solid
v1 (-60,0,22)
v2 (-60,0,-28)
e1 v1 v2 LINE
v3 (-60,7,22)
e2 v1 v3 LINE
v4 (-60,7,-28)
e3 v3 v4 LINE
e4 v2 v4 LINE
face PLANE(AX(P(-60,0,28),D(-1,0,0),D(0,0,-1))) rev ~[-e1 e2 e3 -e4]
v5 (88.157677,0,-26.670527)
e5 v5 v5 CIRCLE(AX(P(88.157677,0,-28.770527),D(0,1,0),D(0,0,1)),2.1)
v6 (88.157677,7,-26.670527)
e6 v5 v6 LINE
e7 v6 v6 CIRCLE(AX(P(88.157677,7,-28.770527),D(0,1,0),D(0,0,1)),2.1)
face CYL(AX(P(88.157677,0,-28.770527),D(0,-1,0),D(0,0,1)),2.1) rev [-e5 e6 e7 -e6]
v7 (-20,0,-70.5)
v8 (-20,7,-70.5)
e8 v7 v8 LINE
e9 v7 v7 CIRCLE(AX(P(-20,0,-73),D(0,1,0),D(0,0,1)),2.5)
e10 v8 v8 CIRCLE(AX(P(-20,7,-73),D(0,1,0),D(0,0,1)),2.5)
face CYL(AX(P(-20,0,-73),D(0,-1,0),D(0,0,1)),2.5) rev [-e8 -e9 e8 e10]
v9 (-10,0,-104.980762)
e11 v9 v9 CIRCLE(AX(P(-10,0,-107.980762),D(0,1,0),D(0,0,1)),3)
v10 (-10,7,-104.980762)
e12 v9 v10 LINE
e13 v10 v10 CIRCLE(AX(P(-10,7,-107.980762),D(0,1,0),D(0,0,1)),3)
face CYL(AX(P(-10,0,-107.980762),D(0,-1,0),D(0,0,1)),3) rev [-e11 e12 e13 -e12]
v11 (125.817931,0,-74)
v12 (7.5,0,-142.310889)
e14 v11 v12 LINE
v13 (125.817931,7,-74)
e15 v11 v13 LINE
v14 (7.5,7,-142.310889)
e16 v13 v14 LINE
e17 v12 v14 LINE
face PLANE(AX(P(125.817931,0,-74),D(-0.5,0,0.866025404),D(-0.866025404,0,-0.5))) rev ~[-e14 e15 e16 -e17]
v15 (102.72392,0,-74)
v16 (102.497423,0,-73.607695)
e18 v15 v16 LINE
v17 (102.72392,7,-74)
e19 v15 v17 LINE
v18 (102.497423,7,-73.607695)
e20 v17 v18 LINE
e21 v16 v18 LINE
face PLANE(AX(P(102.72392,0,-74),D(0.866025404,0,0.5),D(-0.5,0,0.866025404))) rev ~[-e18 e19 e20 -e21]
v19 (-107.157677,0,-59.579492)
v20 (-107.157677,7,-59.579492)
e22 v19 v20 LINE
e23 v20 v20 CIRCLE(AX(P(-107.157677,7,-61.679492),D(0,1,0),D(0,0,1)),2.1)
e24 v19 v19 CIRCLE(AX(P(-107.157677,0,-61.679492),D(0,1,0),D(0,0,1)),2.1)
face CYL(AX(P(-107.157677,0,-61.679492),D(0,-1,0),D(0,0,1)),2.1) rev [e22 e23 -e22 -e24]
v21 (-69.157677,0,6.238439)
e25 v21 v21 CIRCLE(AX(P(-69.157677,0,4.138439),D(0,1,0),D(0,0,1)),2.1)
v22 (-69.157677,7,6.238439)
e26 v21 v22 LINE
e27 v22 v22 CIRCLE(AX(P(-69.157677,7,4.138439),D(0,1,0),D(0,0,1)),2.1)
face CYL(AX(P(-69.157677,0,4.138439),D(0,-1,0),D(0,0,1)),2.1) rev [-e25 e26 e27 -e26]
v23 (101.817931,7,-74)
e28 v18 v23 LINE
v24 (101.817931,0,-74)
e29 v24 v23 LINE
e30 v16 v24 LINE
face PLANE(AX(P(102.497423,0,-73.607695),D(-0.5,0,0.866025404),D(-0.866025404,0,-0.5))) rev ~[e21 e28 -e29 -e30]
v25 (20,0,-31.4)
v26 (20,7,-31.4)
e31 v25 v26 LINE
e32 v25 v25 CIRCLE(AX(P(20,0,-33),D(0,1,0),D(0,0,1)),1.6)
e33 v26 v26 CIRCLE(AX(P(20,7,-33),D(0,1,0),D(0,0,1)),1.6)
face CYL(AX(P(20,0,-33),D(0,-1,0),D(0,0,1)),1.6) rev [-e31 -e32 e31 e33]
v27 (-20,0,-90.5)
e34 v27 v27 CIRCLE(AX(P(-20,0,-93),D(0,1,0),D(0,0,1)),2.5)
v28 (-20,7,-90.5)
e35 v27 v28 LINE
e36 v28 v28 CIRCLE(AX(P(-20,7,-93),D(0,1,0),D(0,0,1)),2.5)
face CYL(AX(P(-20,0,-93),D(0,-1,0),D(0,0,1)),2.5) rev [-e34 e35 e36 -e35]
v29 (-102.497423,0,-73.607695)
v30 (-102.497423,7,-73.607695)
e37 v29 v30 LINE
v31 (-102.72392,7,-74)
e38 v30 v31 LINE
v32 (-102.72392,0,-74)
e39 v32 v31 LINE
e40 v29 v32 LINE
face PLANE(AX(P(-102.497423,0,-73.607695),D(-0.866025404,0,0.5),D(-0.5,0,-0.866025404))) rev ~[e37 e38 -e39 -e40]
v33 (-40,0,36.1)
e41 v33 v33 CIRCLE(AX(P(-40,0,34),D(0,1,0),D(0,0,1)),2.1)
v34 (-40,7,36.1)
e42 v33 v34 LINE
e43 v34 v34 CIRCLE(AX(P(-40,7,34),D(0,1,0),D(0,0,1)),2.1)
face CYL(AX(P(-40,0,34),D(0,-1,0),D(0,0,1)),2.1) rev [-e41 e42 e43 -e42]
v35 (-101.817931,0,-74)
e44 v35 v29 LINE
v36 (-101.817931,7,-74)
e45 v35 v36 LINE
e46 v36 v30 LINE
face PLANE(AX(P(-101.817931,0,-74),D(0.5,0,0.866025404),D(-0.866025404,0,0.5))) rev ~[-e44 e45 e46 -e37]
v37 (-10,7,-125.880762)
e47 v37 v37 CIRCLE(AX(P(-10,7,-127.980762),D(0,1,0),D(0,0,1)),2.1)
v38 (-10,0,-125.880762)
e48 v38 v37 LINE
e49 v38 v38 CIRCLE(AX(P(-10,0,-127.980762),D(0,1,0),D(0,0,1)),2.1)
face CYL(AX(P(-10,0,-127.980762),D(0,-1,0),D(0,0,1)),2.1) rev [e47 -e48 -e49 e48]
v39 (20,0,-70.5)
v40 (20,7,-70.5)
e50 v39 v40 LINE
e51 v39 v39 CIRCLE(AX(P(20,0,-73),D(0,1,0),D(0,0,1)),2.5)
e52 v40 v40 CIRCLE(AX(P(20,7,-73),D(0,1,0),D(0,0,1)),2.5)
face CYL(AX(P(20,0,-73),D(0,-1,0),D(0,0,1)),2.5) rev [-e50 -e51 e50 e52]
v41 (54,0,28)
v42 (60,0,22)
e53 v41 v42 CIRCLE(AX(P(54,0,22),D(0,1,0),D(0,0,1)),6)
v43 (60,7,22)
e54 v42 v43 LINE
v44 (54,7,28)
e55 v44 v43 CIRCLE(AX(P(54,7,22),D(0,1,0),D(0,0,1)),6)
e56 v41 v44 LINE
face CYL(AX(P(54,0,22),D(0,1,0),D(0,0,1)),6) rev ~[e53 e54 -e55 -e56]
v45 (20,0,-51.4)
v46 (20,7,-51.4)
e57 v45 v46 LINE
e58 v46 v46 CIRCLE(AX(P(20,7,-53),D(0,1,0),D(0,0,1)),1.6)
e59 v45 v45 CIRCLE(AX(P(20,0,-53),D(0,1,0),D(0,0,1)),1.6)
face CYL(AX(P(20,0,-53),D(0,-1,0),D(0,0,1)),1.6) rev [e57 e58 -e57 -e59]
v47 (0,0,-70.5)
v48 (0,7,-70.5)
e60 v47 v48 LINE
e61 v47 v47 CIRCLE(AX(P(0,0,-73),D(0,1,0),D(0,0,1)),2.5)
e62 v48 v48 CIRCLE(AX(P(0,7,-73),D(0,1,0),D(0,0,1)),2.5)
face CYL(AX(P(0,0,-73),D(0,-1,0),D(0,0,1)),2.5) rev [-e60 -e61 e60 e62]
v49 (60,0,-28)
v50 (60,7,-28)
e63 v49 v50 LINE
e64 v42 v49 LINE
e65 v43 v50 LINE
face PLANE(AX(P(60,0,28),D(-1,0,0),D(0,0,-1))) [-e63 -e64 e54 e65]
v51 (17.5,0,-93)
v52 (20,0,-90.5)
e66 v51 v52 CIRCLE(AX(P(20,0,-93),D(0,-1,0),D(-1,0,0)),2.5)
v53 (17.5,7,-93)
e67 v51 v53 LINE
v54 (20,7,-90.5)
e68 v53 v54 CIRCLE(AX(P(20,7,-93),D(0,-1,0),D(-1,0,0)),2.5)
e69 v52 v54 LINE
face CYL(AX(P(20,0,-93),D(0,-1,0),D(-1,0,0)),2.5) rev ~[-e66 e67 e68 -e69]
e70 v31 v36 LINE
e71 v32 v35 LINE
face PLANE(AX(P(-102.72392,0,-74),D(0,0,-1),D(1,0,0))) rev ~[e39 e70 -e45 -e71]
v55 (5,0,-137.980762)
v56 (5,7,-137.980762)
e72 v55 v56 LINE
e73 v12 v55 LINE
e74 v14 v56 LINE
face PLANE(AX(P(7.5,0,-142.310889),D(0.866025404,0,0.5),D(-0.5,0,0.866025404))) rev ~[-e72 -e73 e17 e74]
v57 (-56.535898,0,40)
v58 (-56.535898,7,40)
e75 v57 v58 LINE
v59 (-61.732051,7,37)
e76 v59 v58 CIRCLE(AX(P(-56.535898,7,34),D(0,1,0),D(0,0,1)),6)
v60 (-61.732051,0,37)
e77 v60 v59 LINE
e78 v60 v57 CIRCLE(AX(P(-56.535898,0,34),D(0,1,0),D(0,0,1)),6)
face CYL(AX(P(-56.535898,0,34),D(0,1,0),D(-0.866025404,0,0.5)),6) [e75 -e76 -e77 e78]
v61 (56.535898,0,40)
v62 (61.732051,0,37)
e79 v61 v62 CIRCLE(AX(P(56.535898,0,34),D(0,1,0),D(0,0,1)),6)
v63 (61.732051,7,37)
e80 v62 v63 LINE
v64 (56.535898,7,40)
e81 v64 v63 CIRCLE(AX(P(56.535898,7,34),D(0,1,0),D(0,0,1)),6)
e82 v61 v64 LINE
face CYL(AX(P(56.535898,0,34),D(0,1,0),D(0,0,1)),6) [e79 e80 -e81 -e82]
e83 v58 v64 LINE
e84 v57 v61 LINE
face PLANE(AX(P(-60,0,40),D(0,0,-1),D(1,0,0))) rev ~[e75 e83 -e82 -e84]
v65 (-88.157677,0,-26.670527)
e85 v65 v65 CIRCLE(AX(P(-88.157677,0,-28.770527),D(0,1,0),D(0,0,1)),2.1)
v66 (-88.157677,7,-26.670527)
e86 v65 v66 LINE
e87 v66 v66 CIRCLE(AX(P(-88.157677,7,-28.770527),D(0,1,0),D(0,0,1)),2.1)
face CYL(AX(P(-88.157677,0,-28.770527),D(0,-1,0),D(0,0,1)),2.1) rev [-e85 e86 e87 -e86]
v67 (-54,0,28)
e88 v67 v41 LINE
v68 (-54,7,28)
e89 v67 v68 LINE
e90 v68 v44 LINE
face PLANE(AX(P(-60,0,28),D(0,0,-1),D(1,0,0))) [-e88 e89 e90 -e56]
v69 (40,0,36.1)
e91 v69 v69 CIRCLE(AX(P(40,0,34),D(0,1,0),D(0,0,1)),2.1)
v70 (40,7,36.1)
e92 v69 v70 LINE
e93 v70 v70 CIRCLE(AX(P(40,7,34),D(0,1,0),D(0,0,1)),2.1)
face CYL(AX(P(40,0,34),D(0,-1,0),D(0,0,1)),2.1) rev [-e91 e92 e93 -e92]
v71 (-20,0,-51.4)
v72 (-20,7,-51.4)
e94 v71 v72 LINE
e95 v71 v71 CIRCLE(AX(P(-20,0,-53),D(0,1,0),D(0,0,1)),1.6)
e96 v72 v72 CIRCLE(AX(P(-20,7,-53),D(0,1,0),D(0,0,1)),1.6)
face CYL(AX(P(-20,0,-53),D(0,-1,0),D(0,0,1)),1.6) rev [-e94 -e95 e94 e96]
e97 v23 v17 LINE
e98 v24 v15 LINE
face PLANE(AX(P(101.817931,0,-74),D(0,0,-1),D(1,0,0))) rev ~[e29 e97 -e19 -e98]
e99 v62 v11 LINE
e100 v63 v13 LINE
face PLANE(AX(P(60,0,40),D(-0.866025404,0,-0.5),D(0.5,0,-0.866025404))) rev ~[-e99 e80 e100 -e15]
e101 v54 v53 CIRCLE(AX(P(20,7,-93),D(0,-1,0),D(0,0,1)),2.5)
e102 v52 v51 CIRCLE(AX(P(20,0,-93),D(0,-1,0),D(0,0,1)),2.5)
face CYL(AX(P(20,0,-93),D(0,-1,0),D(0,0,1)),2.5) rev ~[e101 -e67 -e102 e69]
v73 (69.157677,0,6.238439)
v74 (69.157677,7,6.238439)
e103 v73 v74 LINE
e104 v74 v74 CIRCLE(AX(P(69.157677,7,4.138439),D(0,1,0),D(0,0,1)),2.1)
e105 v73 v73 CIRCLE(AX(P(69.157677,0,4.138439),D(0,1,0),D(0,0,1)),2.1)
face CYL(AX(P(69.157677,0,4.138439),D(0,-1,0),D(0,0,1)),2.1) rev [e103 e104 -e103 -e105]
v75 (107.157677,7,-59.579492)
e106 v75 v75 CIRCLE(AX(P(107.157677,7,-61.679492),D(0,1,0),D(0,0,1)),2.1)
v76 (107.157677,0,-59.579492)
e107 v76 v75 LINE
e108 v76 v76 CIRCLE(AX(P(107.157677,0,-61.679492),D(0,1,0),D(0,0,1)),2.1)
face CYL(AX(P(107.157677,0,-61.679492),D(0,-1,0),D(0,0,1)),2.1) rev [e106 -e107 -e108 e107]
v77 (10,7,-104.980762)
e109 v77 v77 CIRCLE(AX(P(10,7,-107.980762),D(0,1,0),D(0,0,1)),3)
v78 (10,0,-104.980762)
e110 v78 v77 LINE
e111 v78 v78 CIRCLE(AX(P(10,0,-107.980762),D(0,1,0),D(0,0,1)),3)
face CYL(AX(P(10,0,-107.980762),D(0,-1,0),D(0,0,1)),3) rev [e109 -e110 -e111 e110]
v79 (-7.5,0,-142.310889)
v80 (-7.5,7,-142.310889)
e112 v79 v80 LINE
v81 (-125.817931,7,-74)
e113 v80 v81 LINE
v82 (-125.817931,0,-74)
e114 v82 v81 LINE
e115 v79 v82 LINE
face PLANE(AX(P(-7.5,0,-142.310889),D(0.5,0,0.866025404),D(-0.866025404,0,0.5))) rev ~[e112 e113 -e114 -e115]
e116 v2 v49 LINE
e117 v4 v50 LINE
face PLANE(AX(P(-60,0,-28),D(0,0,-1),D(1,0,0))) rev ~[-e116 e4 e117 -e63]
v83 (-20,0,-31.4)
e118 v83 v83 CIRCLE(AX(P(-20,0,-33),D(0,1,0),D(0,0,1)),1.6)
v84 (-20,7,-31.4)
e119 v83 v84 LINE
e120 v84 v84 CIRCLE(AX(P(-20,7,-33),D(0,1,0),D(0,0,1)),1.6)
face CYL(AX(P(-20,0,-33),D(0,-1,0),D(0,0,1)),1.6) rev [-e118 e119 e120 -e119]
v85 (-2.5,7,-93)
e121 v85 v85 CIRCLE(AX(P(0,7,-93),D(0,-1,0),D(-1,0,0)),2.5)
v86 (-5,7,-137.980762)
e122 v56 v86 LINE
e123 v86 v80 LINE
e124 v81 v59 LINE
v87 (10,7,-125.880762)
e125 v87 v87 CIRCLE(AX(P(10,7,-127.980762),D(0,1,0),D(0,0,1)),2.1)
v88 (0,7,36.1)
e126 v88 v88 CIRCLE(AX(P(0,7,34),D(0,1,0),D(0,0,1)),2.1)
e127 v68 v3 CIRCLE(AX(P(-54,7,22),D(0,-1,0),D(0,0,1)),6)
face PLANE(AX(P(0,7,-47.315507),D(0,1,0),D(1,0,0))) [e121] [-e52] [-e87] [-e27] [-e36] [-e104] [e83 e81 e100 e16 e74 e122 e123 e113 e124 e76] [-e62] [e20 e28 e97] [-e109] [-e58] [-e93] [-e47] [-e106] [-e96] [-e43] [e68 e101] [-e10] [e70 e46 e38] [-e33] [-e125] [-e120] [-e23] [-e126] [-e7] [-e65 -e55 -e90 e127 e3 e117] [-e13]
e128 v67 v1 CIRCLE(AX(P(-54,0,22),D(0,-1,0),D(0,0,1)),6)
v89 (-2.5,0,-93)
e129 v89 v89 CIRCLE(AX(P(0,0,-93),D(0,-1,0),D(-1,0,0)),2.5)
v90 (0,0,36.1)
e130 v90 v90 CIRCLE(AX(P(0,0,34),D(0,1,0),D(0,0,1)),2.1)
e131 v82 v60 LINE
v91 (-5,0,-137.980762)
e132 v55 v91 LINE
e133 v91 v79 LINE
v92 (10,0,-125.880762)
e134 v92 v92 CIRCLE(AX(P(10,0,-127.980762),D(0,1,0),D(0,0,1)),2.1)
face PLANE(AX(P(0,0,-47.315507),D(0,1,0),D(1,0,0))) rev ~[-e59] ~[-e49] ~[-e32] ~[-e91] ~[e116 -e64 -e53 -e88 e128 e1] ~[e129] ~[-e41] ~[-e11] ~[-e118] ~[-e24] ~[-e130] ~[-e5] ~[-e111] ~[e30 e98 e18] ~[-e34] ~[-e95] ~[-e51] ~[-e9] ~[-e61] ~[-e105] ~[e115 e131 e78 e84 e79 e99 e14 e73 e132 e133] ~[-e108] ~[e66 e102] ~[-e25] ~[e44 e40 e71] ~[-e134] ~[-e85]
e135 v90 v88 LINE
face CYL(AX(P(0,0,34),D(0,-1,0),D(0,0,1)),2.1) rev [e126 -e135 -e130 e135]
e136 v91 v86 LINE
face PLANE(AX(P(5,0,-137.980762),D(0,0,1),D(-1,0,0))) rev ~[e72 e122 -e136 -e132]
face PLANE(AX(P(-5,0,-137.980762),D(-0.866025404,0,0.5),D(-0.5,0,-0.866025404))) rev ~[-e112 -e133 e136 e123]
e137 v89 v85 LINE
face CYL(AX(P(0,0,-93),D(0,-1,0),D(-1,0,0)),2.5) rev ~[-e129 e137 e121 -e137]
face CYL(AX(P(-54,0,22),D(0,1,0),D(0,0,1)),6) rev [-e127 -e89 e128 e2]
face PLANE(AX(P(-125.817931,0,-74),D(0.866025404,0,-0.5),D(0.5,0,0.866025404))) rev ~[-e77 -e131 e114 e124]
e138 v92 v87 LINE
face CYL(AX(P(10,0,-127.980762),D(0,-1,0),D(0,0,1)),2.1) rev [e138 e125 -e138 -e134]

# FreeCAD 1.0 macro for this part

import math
import FreeCAD as App
import Part
import Sketcher

V = App.Vector
Q = App.Units.Quantity


def edges_at(feature, points):
    """Names of the edges that pass closest to the given points."""
    edges = feature.Shape.Edges
    near = lambda p: min(range(len(edges)), key=lambda i: edges[i].distToShape(Part.Vertex(*p))[0])
    return sorted({f"Edge{near(p) + 1}" for p in points})


def add_polygon(sketch, points):
    """Adds a closed chain of lines whose ends are joined by coincident constraints."""
    first, n = sketch.GeometryCount, len(points)
    for a, b in zip(points, points[1:] + points[:1]):
        sketch.addGeometry(Part.LineSegment(App.Vector(*a, 0), App.Vector(*b, 0)), False)
    for i in range(n):
        sketch.addConstraint(Sketcher.Constraint("Coincident", first + i, 2, first + (i + 1) % n, 1))

doc = App.newDocument("Part")
params = doc.addObject("Spreadsheet::Sheet", "Params")
for row, (alias, value) in enumerate([
    ("sketch1_diameter", "5 mm"),
    ("sketch1_diameter2", "6 mm"),
    ("sketch1_diameter3", "4.2 mm"),
    ("sketch1_diameter4", "3.2 mm"),
    ("sketch1_width", "120 mm"),
    ("pad1_length", "7 mm"),
    ("fillet_radius", "6 mm"),
], start=1):
    params.set(f"A{row}", alias)
    params.set(f"B{row}", "=" + value)
    params.setAlias(f"B{row}", alias)

body = doc.addObject("PartDesign::Body", "Body")

sketch1 = body.newObject("Sketcher::SketchObject", "Sketch")
sketch1.AttachmentSupport = (doc.getObject("XZ_Plane"), [""])
sketch1.MapMode = "FlatFace"
add_polygon(sketch1, [(-125.82, -74), (-60, 40), (60, 40), (125.82, -74), (7.5, -142.31), (5, -137.98), (-5, -137.98), (-7.5, -142.31)])
sketch1.addGeometry(Part.Circle(V(-69.16, 4.14, 0), V(0, 0, 1), 2.1), False)
sketch1.addGeometry(Part.Circle(V(-40, 34, 0), V(0, 0, 1), 2.1), False)
sketch1.addGeometry(Part.Circle(V(0, 34, 0), V(0, 0, 1), 2.1), False)
add_polygon(sketch1, [(60, 28), (-60, 28), (-60, -28), (60, -28)])
sketch1.addGeometry(Part.Circle(V(-88.16, -28.77, 0), V(0, 0, 1), 2.1), False)
sketch1.addGeometry(Part.Circle(V(-20, -33, 0), V(0, 0, 1), 1.6), False)
sketch1.addGeometry(Part.Circle(V(40, 34, 0), V(0, 0, 1), 2.1), False)
sketch1.addGeometry(Part.Circle(V(69.16, 4.14, 0), V(0, 0, 1), 2.1), False)
sketch1.addGeometry(Part.Circle(V(20, -33, 0), V(0, 0, 1), 1.6), False)
sketch1.addGeometry(Part.Circle(V(88.16, -28.77, 0), V(0, 0, 1), 2.1), False)
sketch1.addGeometry(Part.Circle(V(-107.16, -61.68, 0), V(0, 0, 1), 2.1), False)
add_polygon(sketch1, [(-102.5, -73.61), (-102.72, -74), (-101.82, -74)])
sketch1.addGeometry(Part.Circle(V(-20, -53, 0), V(0, 0, 1), 1.6), False)
sketch1.addGeometry(Part.Circle(V(-20, -73, 0), V(0, 0, 1), 2.5), False)
sketch1.addGeometry(Part.Circle(V(0, -73, 0), V(0, 0, 1), 2.5), False)
sketch1.addGeometry(Part.Circle(V(-20, -93, 0), V(0, 0, 1), 2.5), False)
sketch1.addGeometry(Part.Circle(V(0, -93, 0), V(0, 0, 1), 2.5), False)
sketch1.addGeometry(Part.Circle(V(-10, -107.98, 0), V(0, 0, 1), 3), False)
sketch1.addGeometry(Part.Circle(V(-10, -127.98, 0), V(0, 0, 1), 2.1), False)
sketch1.addGeometry(Part.Circle(V(20, -53, 0), V(0, 0, 1), 1.6), False)
sketch1.addGeometry(Part.Circle(V(20, -73, 0), V(0, 0, 1), 2.5), False)
sketch1.addGeometry(Part.Circle(V(107.16, -61.68, 0), V(0, 0, 1), 2.1), False)
add_polygon(sketch1, [(102.72, -74), (102.5, -73.61), (101.82, -74)])
sketch1.addGeometry(Part.ArcOfCircle(Part.Circle(V(20, -93, 0), V(0, 0, 1), 2.5), math.radians(180), math.radians(450)), False)
sketch1.addGeometry(Part.ArcOfCircle(Part.Circle(V(20, -93, 0), V(0, 0, 1), 2.5), math.radians(90), math.radians(180)), False)
sketch1.addGeometry(Part.Circle(V(10, -107.98, 0), V(0, 0, 1), 3), False)
sketch1.addGeometry(Part.Circle(V(10, -127.98, 0), V(0, 0, 1), 2.1), False)
sketch1.addConstraint([
    Sketcher.Constraint("Tangent", 38, 1, 39, 2),
    Sketcher.Constraint("Coincident", 39, 1, 38, 2),
    Sketcher.Constraint("Horizontal", 1),
    Sketcher.Constraint("Horizontal", 5),
    Sketcher.Constraint("Horizontal", 11),
    Sketcher.Constraint("Vertical", 12),
    Sketcher.Constraint("Horizontal", 13),
    Sketcher.Constraint("Vertical", 14),
    Sketcher.Constraint("Horizontal", 23),
    Sketcher.Constraint("Horizontal", 37),
    Sketcher.Constraint("Equal", 8, 9),
    Sketcher.Constraint("Equal", 9, 10),
    Sketcher.Constraint("Equal", 10, 15),
    Sketcher.Constraint("Equal", 15, 17),
    Sketcher.Constraint("Equal", 17, 18),
    Sketcher.Constraint("Equal", 16, 19),
    Sketcher.Constraint("Equal", 18, 20),
    Sketcher.Constraint("Equal", 20, 21),
    Sketcher.Constraint("Equal", 19, 25),
    Sketcher.Constraint("Equal", 26, 27),
    Sketcher.Constraint("Equal", 27, 28),
    Sketcher.Constraint("Equal", 28, 29),
    Sketcher.Constraint("Equal", 21, 31),
    Sketcher.Constraint("Equal", 25, 32),
    Sketcher.Constraint("Equal", 29, 33),
    Sketcher.Constraint("Equal", 31, 34),
    Sketcher.Constraint("Equal", 33, 38),
    Sketcher.Constraint("Equal", 30, 40),
    Sketcher.Constraint("Equal", 34, 41),
    Sketcher.Constraint("Symmetric", 11, 2, 13, 2, -1, 1),
    Sketcher.Constraint("Symmetric", 9, 3, 17, 3, -2),
    Sketcher.Constraint("Symmetric", 8, 3, 18, 3, -2),
    Sketcher.Constraint("Symmetric", 16, 3, 19, 3, -2),
    Sketcher.Constraint("Symmetric", 15, 3, 20, 3, -2),
    Sketcher.Constraint("Symmetric", 25, 3, 32, 3, -2),
    Sketcher.Constraint("Symmetric", 26, 3, 33, 3, -2),
    Sketcher.Constraint("Symmetric", 21, 3, 34, 3, -2),
    Sketcher.Constraint("Symmetric", 28, 3, 38, 3, -2),
    Sketcher.Constraint("Symmetric", 30, 3, 40, 3, -2),
    Sketcher.Constraint("Symmetric", 31, 3, 41, 3, -2),
    Sketcher.Constraint("Symmetric", 3, 2, 6, 2, -2),
    Sketcher.Constraint("Symmetric", 2, 2, 7, 2, -2),
    Sketcher.Constraint("Symmetric", 24, 2, 35, 2, -2),
    Sketcher.Constraint("Symmetric", 23, 2, 36, 2, -2),
    Sketcher.Constraint("PointOnObject", 10, 3, -2),
    Sketcher.Constraint("PointOnObject", 27, 3, -2),
    Sketcher.Constraint("PointOnObject", 29, 3, -2),
    Sketcher.Constraint("Perpendicular", 2, 3),
    Sketcher.Constraint("Perpendicular", 3, 4),
    Sketcher.Constraint("Parallel", 0, 6),
    Sketcher.Constraint("Perpendicular", 6, 7),
    Sketcher.Constraint("Perpendicular", 7, 22),
    Sketcher.Constraint("Perpendicular", 22, 24),
    Sketcher.Constraint("Parallel", 4, 35),
    Sketcher.Constraint("Horizontal", 9, 3, 10, 3),
    Sketcher.Constraint("Horizontal", 26, 3, 27, 3),
    Sketcher.Constraint("Horizontal", 28, 3, 29, 3),
    Sketcher.Constraint("Horizontal", 7, 2, 22, 2),
    Sketcher.Constraint("Horizontal", 39, 3, 38, 1),
    Sketcher.Constraint("Vertical", 16, 3, 25, 3),
    Sketcher.Constraint("Vertical", 25, 3, 26, 3),
    Sketcher.Constraint("Vertical", 26, 3, 28, 3),
    Sketcher.Constraint("Vertical", 30, 3, 31, 3),
    Sketcher.Constraint("Vertical", 0, 2, 11, 2),
    Sketcher.Constraint("Vertical", 38, 3, 39, 1),
    Sketcher.Constraint("Diameter", 26, Q("5 mm")),
    Sketcher.Constraint("Diameter", 30, Q("6 mm")),
    Sketcher.Constraint("Diameter", 8, Q("4.2 mm")),
    Sketcher.Constraint("Diameter", 16, Q("3.2 mm")),
    Sketcher.Constraint("DistanceX", 1, 1, 1, 2, Q("120 mm")),
    Sketcher.Constraint("DistanceX", 5, 2, 5, 1, Q("10 mm")),
    Sketcher.Constraint("DistanceY", 12, 2, 12, 1, Q("56 mm")),
    Sketcher.Constraint("Angle", 0, Q("60 deg")),
    Sketcher.Constraint("Distance", 4, Q("5 mm")),
    Sketcher.Constraint("DistanceX", 9, 3, -1, 1, Q("40 mm")),
    Sketcher.Constraint("DistanceY", -1, 1, 9, 3, Q("34 mm")),
    Sketcher.Constraint("DistanceX", 16, 3, -1, 1, Q("20 mm")),
    Sketcher.Constraint("DistanceY", 16, 3, -1, 1, Q("33 mm")),
    Sketcher.Constraint("DistanceY", 25, 3, -1, 1, Q("53 mm")),
    Sketcher.Constraint("DistanceY", 26, 3, -1, 1, Q("73 mm")),
    Sketcher.Constraint("DistanceY", 28, 3, -1, 1, Q("93 mm")),
    Sketcher.Constraint("DistanceX", 30, 3, -1, 1, Q("10 mm")),
    Sketcher.Constraint("DistanceY", -1, 1, 0, 2, Q("40 mm")),
    Sketcher.Constraint("DistanceY", 2, 2, -1, 1, Q("74 mm")),
    Sketcher.Constraint("DistanceX", 15, 3, 8, 3, Q("19 mm")),
    Sketcher.Constraint("DistanceX", 21, 3, 15, 3, Q("19 mm")),
    Sketcher.Constraint("DistanceY", 31, 3, 30, 3, Q("20 mm")),
    Sketcher.Constraint("DistanceY", 4, 2, 41, 3, Q("10 mm")),
    Sketcher.Constraint("DistanceX", 7, 2, 23, 2, Q("24 mm")),
    Sketcher.Constraint("DistanceX", 23, 1, 23, 2, Q("0.905989 mm")),
    Sketcher.Constraint("DistanceY", -1, 1, 8, 3, Q("4.138439 mm")),
    Sketcher.Constraint("DistanceY", 21, 3, -1, 1, Q("61.679492 mm")),
    Sketcher.Constraint("DistanceY", 24, 2, 15, 3, Q("44.837169 mm")),
    Sketcher.Constraint("DistanceX", 8, 3, -1, 1, Q("69.157677 mm")),
])
sketch1.setExpression("Constraints[83]", "Params.sketch1_diameter")
sketch1.setExpression("Constraints[84]", "Params.sketch1_diameter2")
sketch1.setExpression("Constraints[85]", "Params.sketch1_diameter3")
sketch1.setExpression("Constraints[86]", "Params.sketch1_diameter4")
sketch1.setExpression("Constraints[87]", "Params.sketch1_width")
pad1 = body.newObject("PartDesign::Pad", "Pad")
pad1.Profile = sketch1
pad1.setExpression("Length", "Params.pad1_length")
pad1.Reversed = True
doc.recompute()

fillet = body.newObject("PartDesign::Fillet", "Fillet")
fillet.Base = (pad1, edges_at(pad1, [
    (-60, 3.5, 28),
    (60, 3.5, 28),
    (60, 3.5, 40),
    (-60, 3.5, 40),
]))
fillet.setExpression("Radius", "Params.fillet_radius")

doc.recompute()
